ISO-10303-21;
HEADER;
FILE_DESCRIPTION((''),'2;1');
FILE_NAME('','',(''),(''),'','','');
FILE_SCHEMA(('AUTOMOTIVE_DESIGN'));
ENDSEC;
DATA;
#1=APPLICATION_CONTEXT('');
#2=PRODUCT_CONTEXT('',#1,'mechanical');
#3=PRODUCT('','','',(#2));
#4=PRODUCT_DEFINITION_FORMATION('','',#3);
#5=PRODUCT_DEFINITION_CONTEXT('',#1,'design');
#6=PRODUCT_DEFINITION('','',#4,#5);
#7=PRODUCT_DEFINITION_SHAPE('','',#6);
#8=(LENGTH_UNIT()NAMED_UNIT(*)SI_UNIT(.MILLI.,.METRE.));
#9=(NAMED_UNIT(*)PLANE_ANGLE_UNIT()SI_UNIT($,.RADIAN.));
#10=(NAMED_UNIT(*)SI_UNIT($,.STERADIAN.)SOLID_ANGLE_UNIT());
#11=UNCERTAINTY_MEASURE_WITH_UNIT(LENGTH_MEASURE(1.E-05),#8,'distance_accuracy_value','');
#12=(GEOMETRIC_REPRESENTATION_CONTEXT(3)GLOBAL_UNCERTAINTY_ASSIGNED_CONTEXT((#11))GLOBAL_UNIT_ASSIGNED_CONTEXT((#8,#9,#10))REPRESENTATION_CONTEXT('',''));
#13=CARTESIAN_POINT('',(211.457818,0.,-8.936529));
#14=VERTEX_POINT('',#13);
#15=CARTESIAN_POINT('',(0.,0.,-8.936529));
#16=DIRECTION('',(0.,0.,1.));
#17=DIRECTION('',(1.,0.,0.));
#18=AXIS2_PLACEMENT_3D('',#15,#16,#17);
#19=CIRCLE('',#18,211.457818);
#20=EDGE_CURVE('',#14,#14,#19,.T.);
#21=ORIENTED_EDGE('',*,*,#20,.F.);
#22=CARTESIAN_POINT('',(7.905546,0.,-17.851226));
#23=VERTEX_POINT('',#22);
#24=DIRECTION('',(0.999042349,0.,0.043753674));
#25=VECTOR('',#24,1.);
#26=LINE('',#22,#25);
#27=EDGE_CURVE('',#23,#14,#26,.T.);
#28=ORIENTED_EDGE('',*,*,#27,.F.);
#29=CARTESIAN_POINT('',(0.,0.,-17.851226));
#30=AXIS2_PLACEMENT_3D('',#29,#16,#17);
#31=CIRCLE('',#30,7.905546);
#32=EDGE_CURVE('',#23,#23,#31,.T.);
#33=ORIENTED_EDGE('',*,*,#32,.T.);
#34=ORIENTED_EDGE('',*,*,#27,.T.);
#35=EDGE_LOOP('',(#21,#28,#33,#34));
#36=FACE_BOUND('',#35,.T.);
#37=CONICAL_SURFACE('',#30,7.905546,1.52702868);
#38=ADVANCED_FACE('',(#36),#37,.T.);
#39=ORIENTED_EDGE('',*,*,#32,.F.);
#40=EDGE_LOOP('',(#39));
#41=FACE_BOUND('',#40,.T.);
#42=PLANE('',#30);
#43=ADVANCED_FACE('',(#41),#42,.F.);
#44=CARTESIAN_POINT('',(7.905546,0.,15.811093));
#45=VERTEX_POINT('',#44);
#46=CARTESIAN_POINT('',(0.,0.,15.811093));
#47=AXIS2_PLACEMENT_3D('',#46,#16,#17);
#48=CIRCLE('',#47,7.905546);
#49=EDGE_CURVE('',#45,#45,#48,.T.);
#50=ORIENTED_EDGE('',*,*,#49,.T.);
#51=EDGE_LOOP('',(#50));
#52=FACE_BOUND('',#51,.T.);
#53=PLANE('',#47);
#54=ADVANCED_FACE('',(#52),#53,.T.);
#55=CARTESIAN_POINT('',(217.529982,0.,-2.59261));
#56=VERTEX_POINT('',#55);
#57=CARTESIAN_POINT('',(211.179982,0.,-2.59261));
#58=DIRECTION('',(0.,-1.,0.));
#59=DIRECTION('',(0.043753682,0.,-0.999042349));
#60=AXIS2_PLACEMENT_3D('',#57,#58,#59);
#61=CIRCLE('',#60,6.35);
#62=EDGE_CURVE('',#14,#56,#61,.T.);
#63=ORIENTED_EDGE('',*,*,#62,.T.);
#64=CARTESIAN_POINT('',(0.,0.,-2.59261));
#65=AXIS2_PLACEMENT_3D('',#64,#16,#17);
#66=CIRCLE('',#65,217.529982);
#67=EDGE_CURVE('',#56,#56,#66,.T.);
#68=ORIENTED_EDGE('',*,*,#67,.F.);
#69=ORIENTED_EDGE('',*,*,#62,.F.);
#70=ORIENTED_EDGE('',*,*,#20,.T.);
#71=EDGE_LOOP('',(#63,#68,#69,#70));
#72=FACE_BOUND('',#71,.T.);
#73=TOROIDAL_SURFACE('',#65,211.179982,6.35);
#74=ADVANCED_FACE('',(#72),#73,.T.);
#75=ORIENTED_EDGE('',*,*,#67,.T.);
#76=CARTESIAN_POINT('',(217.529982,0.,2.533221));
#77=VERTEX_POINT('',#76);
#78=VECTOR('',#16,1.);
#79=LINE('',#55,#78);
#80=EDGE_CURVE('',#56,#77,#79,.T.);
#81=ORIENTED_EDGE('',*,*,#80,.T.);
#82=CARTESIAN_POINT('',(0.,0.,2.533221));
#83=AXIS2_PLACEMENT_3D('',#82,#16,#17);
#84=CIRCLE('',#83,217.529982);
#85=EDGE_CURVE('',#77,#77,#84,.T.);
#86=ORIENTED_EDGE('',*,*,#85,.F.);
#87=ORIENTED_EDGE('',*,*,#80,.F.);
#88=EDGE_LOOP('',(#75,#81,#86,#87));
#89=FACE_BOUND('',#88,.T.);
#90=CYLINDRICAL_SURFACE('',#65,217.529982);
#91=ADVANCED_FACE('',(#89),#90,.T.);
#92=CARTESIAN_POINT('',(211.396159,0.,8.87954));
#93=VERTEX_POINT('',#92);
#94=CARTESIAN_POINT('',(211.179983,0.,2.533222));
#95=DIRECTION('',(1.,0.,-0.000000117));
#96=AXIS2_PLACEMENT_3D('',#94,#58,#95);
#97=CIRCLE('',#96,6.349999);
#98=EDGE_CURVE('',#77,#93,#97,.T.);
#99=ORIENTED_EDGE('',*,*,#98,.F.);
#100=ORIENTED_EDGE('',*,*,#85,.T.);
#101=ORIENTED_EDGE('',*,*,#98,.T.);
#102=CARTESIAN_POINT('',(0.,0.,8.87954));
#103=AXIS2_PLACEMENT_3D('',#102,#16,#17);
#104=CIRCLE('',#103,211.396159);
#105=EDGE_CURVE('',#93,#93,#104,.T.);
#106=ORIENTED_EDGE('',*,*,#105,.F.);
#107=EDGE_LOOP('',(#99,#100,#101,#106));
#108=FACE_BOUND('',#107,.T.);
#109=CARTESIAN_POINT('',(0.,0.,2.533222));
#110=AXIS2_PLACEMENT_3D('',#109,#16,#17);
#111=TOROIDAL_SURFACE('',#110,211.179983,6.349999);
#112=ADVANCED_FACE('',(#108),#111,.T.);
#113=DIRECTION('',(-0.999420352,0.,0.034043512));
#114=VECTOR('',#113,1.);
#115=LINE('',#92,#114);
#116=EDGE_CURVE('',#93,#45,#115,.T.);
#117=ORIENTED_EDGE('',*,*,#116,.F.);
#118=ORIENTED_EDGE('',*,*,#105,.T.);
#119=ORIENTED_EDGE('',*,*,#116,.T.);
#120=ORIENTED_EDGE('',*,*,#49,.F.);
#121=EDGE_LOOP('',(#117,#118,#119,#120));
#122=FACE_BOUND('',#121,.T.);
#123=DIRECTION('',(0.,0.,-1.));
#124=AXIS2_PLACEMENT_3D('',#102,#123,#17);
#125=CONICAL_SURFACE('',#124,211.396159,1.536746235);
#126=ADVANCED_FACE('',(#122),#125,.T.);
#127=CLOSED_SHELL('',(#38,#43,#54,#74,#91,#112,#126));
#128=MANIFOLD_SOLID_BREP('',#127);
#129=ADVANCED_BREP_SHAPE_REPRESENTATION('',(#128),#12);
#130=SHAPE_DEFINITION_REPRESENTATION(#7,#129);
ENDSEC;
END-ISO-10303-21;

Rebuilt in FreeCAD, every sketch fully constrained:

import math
import FreeCAD as App
import Part
import Sketcher
Q = App.Units.Quantity

doc = App.newDocument("Part")
params = doc.addObject("Spreadsheet::Sheet", "Params")
for row, (alias, value) in enumerate([
    ("sketch1_radius", "0.25 in"),
    ("revolution_angle", "360 deg"),
], start=1):
    params.set(f"A{row}", alias)
    params.set(f"B{row}", "=" + value)
    params.setAlias(f"B{row}", alias)

body = doc.addObject("PartDesign::Body", "Body")

sketch1 = body.newObject("Sketcher::SketchObject", "Sketch")
sketch1.AttachmentSupport = (doc.getObject("XZ_Plane"), [""])
sketch1.MapMode = "FlatFace"
sketch1.addGeometry(Part.LineSegment(App.Vector(211.396159, 8.87954, 0), App.Vector(7.905546, 15.811093, 0)), False)
sketch1.addGeometry(Part.LineSegment(App.Vector(7.905546, 15.811093, 0), App.Vector(0, 15.811093, 0)), False)
sketch1.addGeometry(Part.LineSegment(App.Vector(0, 15.811093, 0), App.Vector(0, -17.851226, 0)), False)
sketch1.addGeometry(Part.LineSegment(App.Vector(0, -17.851226, 0), App.Vector(7.905546, -17.851226, 0)), False)
sketch1.addGeometry(Part.LineSegment(App.Vector(7.905546, -17.851226, 0), App.Vector(211.457818, -8.936529, 0)), False)
sketch1.addGeometry(Part.ArcOfCircle(Part.Circle(App.Vector(211.179982, -2.59261, 0), App.Vector(0, 0, 1), 6.35), math.radians(-87.492298), math.radians(0.000002)), False)
sketch1.addGeometry(Part.LineSegment(App.Vector(217.529982, -2.59261, 0), App.Vector(217.529982, 2.533221, 0)), False)
sketch1.addGeometry(Part.ArcOfCircle(Part.Circle(App.Vector(211.179983, 2.533222, 0), App.Vector(0, 0, 1), 6.349999), math.radians(-0.000007), math.radians(88.049076)), False)
sketch1.addConstraint(Sketcher.Constraint("Coincident", 0, 2, 1, 1))
sketch1.addConstraint(Sketcher.Constraint("Coincident", 1, 2, 2, 1))
sketch1.addConstraint(Sketcher.Constraint("Coincident", 2, 2, 3, 1))
sketch1.addConstraint(Sketcher.Constraint("Coincident", 3, 2, 4, 1))
sketch1.addConstraint(Sketcher.Constraint("Tangent", 4, 2, 5, 1))
sketch1.addConstraint(Sketcher.Constraint("Tangent", 5, 2, 6, 1))
sketch1.addConstraint(Sketcher.Constraint("Tangent", 6, 2, 7, 1))
sketch1.addConstraint(Sketcher.Constraint("Tangent", 7, 2, 0, 1))
sketch1.addConstraint(Sketcher.Constraint("Horizontal", 1))
sketch1.addConstraint(Sketcher.Constraint("Vertical", 2))
sketch1.addConstraint(Sketcher.Constraint("Horizontal", 3))
sketch1.addConstraint(Sketcher.Constraint("Vertical", 6))
sketch1.addConstraint(Sketcher.Constraint("Equal", 5, 7))
sketch1.addConstraint(Sketcher.Constraint("PointOnObject", 1, 2, -2))
sketch1.addConstraint(Sketcher.Constraint("Vertical", 0, 2, 3, 2))
sketch1.addConstraint(Sketcher.Constraint("Radius", 5, Q("0.25 in")))
sketch1.addConstraint(Sketcher.Constraint("DistanceY", 2, 2, 2, 1, 33.662319))
sketch1.addConstraint(Sketcher.Constraint("DistanceY", 6, 1, 6, 2, 5.125831))
sketch1.addConstraint(Sketcher.Constraint("Distance", 4, 203.747391))
sketch1.addConstraint(Sketcher.Constraint("DistanceX", 1, 2, 1, 1, 7.905546))
sketch1.addConstraint(Sketcher.Constraint("DistanceY", 5, 3, -1, 1, 2.59261))
sketch1.addConstraint(Sketcher.Constraint("DistanceX", -1, 1, 4, 2, 211.457818))
sketch1.setExpression("Constraints[15]", "Params.sketch1_radius")
revolution = body.newObject("PartDesign::Revolution", "Revolution")
revolution.Profile = sketch1
revolution.ReferenceAxis = (sketch1, ["V_Axis"])
revolution.setExpression("Angle", "Params.revolution_angle")

doc.recompute()
